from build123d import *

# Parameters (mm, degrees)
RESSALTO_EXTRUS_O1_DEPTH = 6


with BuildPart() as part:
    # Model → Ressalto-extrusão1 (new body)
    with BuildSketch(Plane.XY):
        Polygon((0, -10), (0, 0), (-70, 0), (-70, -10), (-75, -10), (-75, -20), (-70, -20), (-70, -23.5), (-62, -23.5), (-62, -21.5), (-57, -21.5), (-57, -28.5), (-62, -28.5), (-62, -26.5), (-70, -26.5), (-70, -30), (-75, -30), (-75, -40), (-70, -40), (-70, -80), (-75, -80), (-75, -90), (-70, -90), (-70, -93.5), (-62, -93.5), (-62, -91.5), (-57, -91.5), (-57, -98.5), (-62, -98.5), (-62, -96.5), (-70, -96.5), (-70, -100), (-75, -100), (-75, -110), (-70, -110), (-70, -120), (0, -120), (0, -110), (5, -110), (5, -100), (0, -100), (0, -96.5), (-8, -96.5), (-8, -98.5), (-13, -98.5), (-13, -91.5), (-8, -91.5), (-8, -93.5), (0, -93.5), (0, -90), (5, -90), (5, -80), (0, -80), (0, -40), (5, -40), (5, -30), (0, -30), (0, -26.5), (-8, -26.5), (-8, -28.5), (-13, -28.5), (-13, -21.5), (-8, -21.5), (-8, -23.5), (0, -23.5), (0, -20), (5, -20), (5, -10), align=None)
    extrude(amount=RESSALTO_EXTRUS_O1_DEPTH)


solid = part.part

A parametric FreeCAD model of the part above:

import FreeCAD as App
import Part
import Sketcher

V = App.Vector
Q = App.Units.Quantity

doc = App.newDocument("Part")
body = doc.addObject("PartDesign::Body", "Body")

sketch1 = body.newObject("Sketcher::SketchObject", "Sketch")
sketch1.AttachmentSupport = (doc.getObject("XY_Plane"), [""])
sketch1.MapMode = "FlatFace"
sketch1.addGeometry(Part.LineSegment(V(0, -10, 0), V(0, 0, 0)), False)
sketch1.addGeometry(Part.LineSegment(V(0, 0, 0), V(-70, 0, 0)), False)
sketch1.addGeometry(Part.LineSegment(V(-70, 0, 0), V(-70, -10, 0)), False)
sketch1.addGeometry(Part.LineSegment(V(-70, -10, 0), V(-75, -10, 0)), False)
sketch1.addGeometry(Part.LineSegment(V(-75, -10, 0), V(-75, -20, 0)), False)
sketch1.addGeometry(Part.LineSegment(V(-75, -20, 0), V(-70, -20, 0)), False)
sketch1.addGeometry(Part.LineSegment(V(-70, -20, 0), V(-70, -23.5, 0)), False)
sketch1.addGeometry(Part.LineSegment(V(-70, -23.5, 0), V(-62, -23.5, 0)), False)
sketch1.addGeometry(Part.LineSegment(V(-62, -23.5, 0), V(-62, -21.5, 0)), False)
sketch1.addGeometry(Part.LineSegment(V(-62, -21.5, 0), V(-57, -21.5, 0)), False)
sketch1.addGeometry(Part.LineSegment(V(-57, -21.5, 0), V(-57, -28.5, 0)), False)
sketch1.addGeometry(Part.LineSegment(V(-57, -28.5, 0), V(-62, -28.5, 0)), False)
sketch1.addGeometry(Part.LineSegment(V(-62, -28.5, 0), V(-62, -26.5, 0)), False)
sketch1.addGeometry(Part.LineSegment(V(-62, -26.5, 0), V(-70, -26.5, 0)), False)
sketch1.addGeometry(Part.LineSegment(V(-70, -26.5, 0), V(-70, -30, 0)), False)
sketch1.addGeometry(Part.LineSegment(V(-70, -30, 0), V(-75, -30, 0)), False)
sketch1.addGeometry(Part.LineSegment(V(-75, -30, 0), V(-75, -40, 0)), False)
sketch1.addGeometry(Part.LineSegment(V(-75, -40, 0), V(-70, -40, 0)), False)
sketch1.addGeometry(Part.LineSegment(V(-70, -40, 0), V(-70, -80, 0)), False)
sketch1.addGeometry(Part.LineSegment(V(-70, -80, 0), V(-75, -80, 0)), False)
sketch1.addGeometry(Part.LineSegment(V(-75, -80, 0), V(-75, -90, 0)), False)
sketch1.addGeometry(Part.LineSegment(V(-75, -90, 0), V(-70, -90, 0)), False)
sketch1.addGeometry(Part.LineSegment(V(-70, -90, 0), V(-70, -93.5, 0)), False)
sketch1.addGeometry(Part.LineSegment(V(-70, -93.5, 0), V(-62, -93.5, 0)), False)
sketch1.addGeometry(Part.LineSegment(V(-62, -93.5, 0), V(-62, -91.5, 0)), False)
sketch1.addGeometry(Part.LineSegment(V(-62, -91.5, 0), V(-57, -91.5, 0)), False)
sketch1.addGeometry(Part.LineSegment(V(-57, -91.5, 0), V(-57, -98.5, 0)), False)
sketch1.addGeometry(Part.LineSegment(V(-57, -98.5, 0), V(-62, -98.5, 0)), False)
sketch1.addGeometry(Part.LineSegment(V(-62, -98.5, 0), V(-62, -96.5, 0)), False)
sketch1.addGeometry(Part.LineSegment(V(-62, -96.5, 0), V(-70, -96.5, 0)), False)
sketch1.addGeometry(Part.LineSegment(V(-70, -96.5, 0), V(-70, -100, 0)), False)
sketch1.addGeometry(Part.LineSegment(V(-70, -100, 0), V(-75, -100, 0)), False)
sketch1.addGeometry(Part.LineSegment(V(-75, -100, 0), V(-75, -110, 0)), False)
sketch1.addGeometry(Part.LineSegment(V(-75, -110, 0), V(-70, -110, 0)), False)
sketch1.addGeometry(Part.LineSegment(V(-70, -110, 0), V(-70, -120, 0)), False)
sketch1.addGeometry(Part.LineSegment(V(-70, -120, 0), V(0, -120, 0)), False)
sketch1.addGeometry(Part.LineSegment(V(0, -120, 0), V(0, -110, 0)), False)
sketch1.addGeometry(Part.LineSegment(V(0, -110, 0), V(5, -110, 0)), False)
sketch1.addGeometry(Part.LineSegment(V(5, -110, 0), V(5, -100, 0)), False)
sketch1.addGeometry(Part.LineSegment(V(5, -100, 0), V(0, -100, 0)), False)
sketch1.addGeometry(Part.LineSegment(V(0, -100, 0), V(0, -96.5, 0)), False)
sketch1.addGeometry(Part.LineSegment(V(0, -96.5, 0), V(-8, -96.5, 0)), False)
sketch1.addGeometry(Part.LineSegment(V(-8, -96.5, 0), V(-8, -98.5, 0)), False)
sketch1.addGeometry(Part.LineSegment(V(-8, -98.5, 0), V(-13, -98.5, 0)), False)
sketch1.addGeometry(Part.LineSegment(V(-13, -98.5, 0), V(-13, -91.5, 0)), False)
sketch1.addGeometry(Part.LineSegment(V(-13, -91.5, 0), V(-8, -91.5, 0)), False)
sketch1.addGeometry(Part.LineSegment(V(-8, -91.5, 0), V(-8, -93.5, 0)), False)
sketch1.addGeometry(Part.LineSegment(V(-8, -93.5, 0), V(0, -93.5, 0)), False)
sketch1.addGeometry(Part.LineSegment(V(0, -93.5, 0), V(0, -90, 0)), False)
sketch1.addGeometry(Part.LineSegment(V(0, -90, 0), V(5, -90, 0)), False)
sketch1.addGeometry(Part.LineSegment(V(5, -90, 0), V(5, -80, 0)), False)
sketch1.addGeometry(Part.LineSegment(V(5, -80, 0), V(0, -80, 0)), False)
sketch1.addGeometry(Part.LineSegment(V(0, -80, 0), V(0, -40, 0)), False)
sketch1.addGeometry(Part.LineSegment(V(0, -40, 0), V(5, -40, 0)), False)
sketch1.addGeometry(Part.LineSegment(V(5, -40, 0), V(5, -30, 0)), False)
sketch1.addGeometry(Part.LineSegment(V(5, -30, 0), V(0, -30, 0)), False)
sketch1.addGeometry(Part.LineSegment(V(0, -30, 0), V(0, -26.5, 0)), False)
sketch1.addGeometry(Part.LineSegment(V(0, -26.5, 0), V(-8, -26.5, 0)), False)
sketch1.addGeometry(Part.LineSegment(V(-8, -26.5, 0), V(-8, -28.5, 0)), False)
sketch1.addGeometry(Part.LineSegment(V(-8, -28.5, 0), V(-13, -28.5, 0)), False)
sketch1.addGeometry(Part.LineSegment(V(-13, -28.5, 0), V(-13, -21.5, 0)), False)
sketch1.addGeometry(Part.LineSegment(V(-13, -21.5, 0), V(-8, -21.5, 0)), False)
sketch1.addGeometry(Part.LineSegment(V(-8, -21.5, 0), V(-8, -23.5, 0)), False)
sketch1.addGeometry(Part.LineSegment(V(-8, -23.5, 0), V(0, -23.5, 0)), False)
sketch1.addGeometry(Part.LineSegment(V(0, -23.5, 0), V(0, -20, 0)), False)
sketch1.addGeometry(Part.LineSegment(V(0, -20, 0), V(5, -20, 0)), False)
sketch1.addGeometry(Part.LineSegment(V(5, -20, 0), V(5, -10, 0)), False)
sketch1.addGeometry(Part.LineSegment(V(5, -10, 0), V(0, -10, 0)), False)
sketch1.addConstraint(Sketcher.Constraint("Coincident", 0, 2, 1, 1))
sketch1.addConstraint(Sketcher.Constraint("Coincident", 1, 2, 2, 1))
sketch1.addConstraint(Sketcher.Constraint("Coincident", 2, 2, 3, 1))
sketch1.addConstraint(Sketcher.Constraint("Coincident", 3, 2, 4, 1))
sketch1.addConstraint(Sketcher.Constraint("Coincident", 4, 2, 5, 1))
sketch1.addConstraint(Sketcher.Constraint("Coincident", 5, 2, 6, 1))
sketch1.addConstraint(Sketcher.Constraint("Coincident", 6, 2, 7, 1))
sketch1.addConstraint(Sketcher.Constraint("Coincident", 7, 2, 8, 1))
sketch1.addConstraint(Sketcher.Constraint("Coincident", 8, 2, 9, 1))
sketch1.addConstraint(Sketcher.Constraint("Coincident", 9, 2, 10, 1))
sketch1.addConstraint(Sketcher.Constraint("Coincident", 10, 2, 11, 1))
sketch1.addConstraint(Sketcher.Constraint("Coincident", 11, 2, 12, 1))
sketch1.addConstraint(Sketcher.Constraint("Coincident", 12, 2, 13, 1))
sketch1.addConstraint(Sketcher.Constraint("Coincident", 13, 2, 14, 1))
sketch1.addConstraint(Sketcher.Constraint("Coincident", 14, 2, 15, 1))
sketch1.addConstraint(Sketcher.Constraint("Coincident", 15, 2, 16, 1))
sketch1.addConstraint(Sketcher.Constraint("Coincident", 16, 2, 17, 1))
sketch1.addConstraint(Sketcher.Constraint("Coincident", 17, 2, 18, 1))
sketch1.addConstraint(Sketcher.Constraint("Coincident", 18, 2, 19, 1))
sketch1.addConstraint(Sketcher.Constraint("Coincident", 19, 2, 20, 1))
sketch1.addConstraint(Sketcher.Constraint("Coincident", 20, 2, 21, 1))
sketch1.addConstraint(Sketcher.Constraint("Coincident", 21, 2, 22, 1))
sketch1.addConstraint(Sketcher.Constraint("Coincident", 22, 2, 23, 1))
sketch1.addConstraint(Sketcher.Constraint("Coincident", 23, 2, 24, 1))
sketch1.addConstraint(Sketcher.Constraint("Coincident", 24, 2, 25, 1))
sketch1.addConstraint(Sketcher.Constraint("Coincident", 25, 2, 26, 1))
sketch1.addConstraint(Sketcher.Constraint("Coincident", 26, 2, 27, 1))
sketch1.addConstraint(Sketcher.Constraint("Coincident", 27, 2, 28, 1))
sketch1.addConstraint(Sketcher.Constraint("Coincident", 28, 2, 29, 1))
sketch1.addConstraint(Sketcher.Constraint("Coincident", 29, 2, 30, 1))
sketch1.addConstraint(Sketcher.Constraint("Coincident", 30, 2, 31, 1))
sketch1.addConstraint(Sketcher.Constraint("Coincident", 31, 2, 32, 1))
sketch1.addConstraint(Sketcher.Constraint("Coincident", 32, 2, 33, 1))
sketch1.addConstraint(Sketcher.Constraint("Coincident", 33, 2, 34, 1))
sketch1.addConstraint(Sketcher.Constraint("Coincident", 34, 2, 35, 1))
sketch1.addConstraint(Sketcher.Constraint("Coincident", 35, 2, 36, 1))
sketch1.addConstraint(Sketcher.Constraint("Coincident", 36, 2, 37, 1))
sketch1.addConstraint(Sketcher.Constraint("Coincident", 37, 2, 38, 1))
sketch1.addConstraint(Sketcher.Constraint("Coincident", 38, 2, 39, 1))
sketch1.addConstraint(Sketcher.Constraint("Coincident", 39, 2, 40, 1))
sketch1.addConstraint(Sketcher.Constraint("Coincident", 40, 2, 41, 1))
sketch1.addConstraint(Sketcher.Constraint("Coincident", 41, 2, 42, 1))
sketch1.addConstraint(Sketcher.Constraint("Coincident", 42, 2, 43, 1))
sketch1.addConstraint(Sketcher.Constraint("Coincident", 43, 2, 44, 1))
sketch1.addConstraint(Sketcher.Constraint("Coincident", 44, 2, 45, 1))
sketch1.addConstraint(Sketcher.Constraint("Coincident", 45, 2, 46, 1))
sketch1.addConstraint(Sketcher.Constraint("Coincident", 46, 2, 47, 1))
sketch1.addConstraint(Sketcher.Constraint("Coincident", 47, 2, 48, 1))
sketch1.addConstraint(Sketcher.Constraint("Coincident", 48, 2, 49, 1))
sketch1.addConstraint(Sketcher.Constraint("Coincident", 49, 2, 50, 1))
sketch1.addConstraint(Sketcher.Constraint("Coincident", 50, 2, 51, 1))
sketch1.addConstraint(Sketcher.Constraint("Coincident", 51, 2, 52, 1))
sketch1.addConstraint(Sketcher.Constraint("Coincident", 52, 2, 53, 1))
sketch1.addConstraint(Sketcher.Constraint("Coincident", 53, 2, 54, 1))
sketch1.addConstraint(Sketcher.Constraint("Coincident", 54, 2, 55, 1))
sketch1.addConstraint(Sketcher.Constraint("Coincident", 55, 2, 56, 1))
sketch1.addConstraint(Sketcher.Constraint("Coincident", 56, 2, 57, 1))
sketch1.addConstraint(Sketcher.Constraint("Coincident", 57, 2, 58, 1))
sketch1.addConstraint(Sketcher.Constraint("Coincident", 58, 2, 59, 1))
sketch1.addConstraint(Sketcher.Constraint("Coincident", 59, 2, 60, 1))
sketch1.addConstraint(Sketcher.Constraint("Coincident", 60, 2, 61, 1))
sketch1.addConstraint(Sketcher.Constraint("Coincident", 61, 2, 62, 1))
sketch1.addConstraint(Sketcher.Constraint("Coincident", 62, 2, 63, 1))
sketch1.addConstraint(Sketcher.Constraint("Coincident", 63, 2, 64, 1))
sketch1.addConstraint(Sketcher.Constraint("Coincident", 64, 2, 65, 1))
sketch1.addConstraint(Sketcher.Constraint("Coincident", 65, 2, 66, 1))
sketch1.addConstraint(Sketcher.Constraint("Coincident", 66, 2, 67, 1))
sketch1.addConstraint(Sketcher.Constraint("Coincident", 67, 2, 0, 1))
sketch1.addConstraint(Sketcher.Constraint("Vertical", 0))
sketch1.addConstraint(Sketcher.Constraint("Horizontal", 1))
sketch1.addConstraint(Sketcher.Constraint("Vertical", 2))
sketch1.addConstraint(Sketcher.Constraint("Horizontal", 3))
sketch1.addConstraint(Sketcher.Constraint("Vertical", 4))
sketch1.addConstraint(Sketcher.Constraint("Horizontal", 5))
sketch1.addConstraint(Sketcher.Constraint("Vertical", 6))
sketch1.addConstraint(Sketcher.Constraint("Horizontal", 7))
sketch1.addConstraint(Sketcher.Constraint("Vertical", 8))
sketch1.addConstraint(Sketcher.Constraint("Horizontal", 9))
sketch1.addConstraint(Sketcher.Constraint("Vertical", 10))
sketch1.addConstraint(Sketcher.Constraint("Horizontal", 11))
sketch1.addConstraint(Sketcher.Constraint("Vertical", 12))
sketch1.addConstraint(Sketcher.Constraint("Horizontal", 13))
sketch1.addConstraint(Sketcher.Constraint("Vertical", 14))
sketch1.addConstraint(Sketcher.Constraint("Horizontal", 15))
sketch1.addConstraint(Sketcher.Constraint("Vertical", 16))
sketch1.addConstraint(Sketcher.Constraint("Horizontal", 17))
sketch1.addConstraint(Sketcher.Constraint("Vertical", 18))
sketch1.addConstraint(Sketcher.Constraint("Horizontal", 19))
sketch1.addConstraint(Sketcher.Constraint("Vertical", 20))
sketch1.addConstraint(Sketcher.Constraint("Horizontal", 21))
sketch1.addConstraint(Sketcher.Constraint("Vertical", 22))
sketch1.addConstraint(Sketcher.Constraint("Horizontal", 23))
sketch1.addConstraint(Sketcher.Constraint("Vertical", 24))
sketch1.addConstraint(Sketcher.Constraint("Horizontal", 25))
sketch1.addConstraint(Sketcher.Constraint("Vertical", 26))
sketch1.addConstraint(Sketcher.Constraint("Horizontal", 27))
sketch1.addConstraint(Sketcher.Constraint("Vertical", 28))
sketch1.addConstraint(Sketcher.Constraint("Horizontal", 29))
sketch1.addConstraint(Sketcher.Constraint("Vertical", 30))
sketch1.addConstraint(Sketcher.Constraint("Horizontal", 31))
sketch1.addConstraint(Sketcher.Constraint("Vertical", 32))
sketch1.addConstraint(Sketcher.Constraint("Horizontal", 33))
sketch1.addConstraint(Sketcher.Constraint("Vertical", 34))
sketch1.addConstraint(Sketcher.Constraint("Horizontal", 35))
sketch1.addConstraint(Sketcher.Constraint("Vertical", 36))
sketch1.addConstraint(Sketcher.Constraint("Horizontal", 37))
sketch1.addConstraint(Sketcher.Constraint("Vertical", 38))
sketch1.addConstraint(Sketcher.Constraint("Horizontal", 39))
sketch1.addConstraint(Sketcher.Constraint("Vertical", 40))
sketch1.addConstraint(Sketcher.Constraint("Horizontal", 41))
sketch1.addConstraint(Sketcher.Constraint("Vertical", 42))
sketch1.addConstraint(Sketcher.Constraint("Horizontal", 43))
sketch1.addConstraint(Sketcher.Constraint("Vertical", 44))
sketch1.addConstraint(Sketcher.Constraint("Horizontal", 45))
sketch1.addConstraint(Sketcher.Constraint("Vertical", 46))
sketch1.addConstraint(Sketcher.Constraint("Horizontal", 47))
sketch1.addConstraint(Sketcher.Constraint("Vertical", 48))
sketch1.addConstraint(Sketcher.Constraint("Horizontal", 49))
sketch1.addConstraint(Sketcher.Constraint("Vertical", 50))
sketch1.addConstraint(Sketcher.Constraint("Horizontal", 51))
sketch1.addConstraint(Sketcher.Constraint("Vertical", 52))
sketch1.addConstraint(Sketcher.Constraint("Horizontal", 53))
sketch1.addConstraint(Sketcher.Constraint("Vertical", 54))
sketch1.addConstraint(Sketcher.Constraint("Horizontal", 55))
sketch1.addConstraint(Sketcher.Constraint("Vertical", 56))
sketch1.addConstraint(Sketcher.Constraint("Horizontal", 57))
sketch1.addConstraint(Sketcher.Constraint("Vertical", 58))
sketch1.addConstraint(Sketcher.Constraint("Horizontal", 59))
sketch1.addConstraint(Sketcher.Constraint("Vertical", 60))
sketch1.addConstraint(Sketcher.Constraint("Horizontal", 61))
sketch1.addConstraint(Sketcher.Constraint("Vertical", 62))
sketch1.addConstraint(Sketcher.Constraint("Horizontal", 63))
sketch1.addConstraint(Sketcher.Constraint("Vertical", 64))
sketch1.addConstraint(Sketcher.Constraint("Horizontal", 65))
sketch1.addConstraint(Sketcher.Constraint("Vertical", 66))
sketch1.addConstraint(Sketcher.Constraint("Horizontal", 67))
sketch1.addConstraint(Sketcher.Constraint("Coincident", 0, 2, -1, 1))
sketch1.addConstraint(Sketcher.Constraint("PointOnObject", 35, 2, -2))
sketch1.addConstraint(Sketcher.Constraint("PointOnObject", 39, 2, -2))
sketch1.addConstraint(Sketcher.Constraint("PointOnObject", 47, 2, -2))
sketch1.addConstraint(Sketcher.Constraint("PointOnObject", 51, 2, -2))
sketch1.addConstraint(Sketcher.Constraint("PointOnObject", 55, 2, -2))
sketch1.addConstraint(Sketcher.Constraint("PointOnObject", 63, 2, -2))
sketch1.addConstraint(Sketcher.Constraint("Horizontal", 33, 2, 36, 2))
sketch1.addConstraint(Sketcher.Constraint("Horizontal", 31, 2, 38, 2))
sketch1.addConstraint(Sketcher.Constraint("Horizontal", 29, 2, 40, 2))
sketch1.addConstraint(Sketcher.Constraint("Horizontal", 27, 2, 42, 2))
sketch1.addConstraint(Sketcher.Constraint("Horizontal", 25, 2, 44, 2))
sketch1.addConstraint(Sketcher.Constraint("Horizontal", 23, 2, 46, 2))
sketch1.addConstraint(Sketcher.Constraint("Horizontal", 21, 2, 48, 2))
sketch1.addConstraint(Sketcher.Constraint("Horizontal", 19, 2, 50, 2))
sketch1.addConstraint(Sketcher.Constraint("Horizontal", 17, 2, 52, 2))
sketch1.addConstraint(Sketcher.Constraint("Horizontal", 15, 2, 54, 2))
sketch1.addConstraint(Sketcher.Constraint("Horizontal", 13, 2, 56, 2))
sketch1.addConstraint(Sketcher.Constraint("Horizontal", 11, 2, 58, 2))
sketch1.addConstraint(Sketcher.Constraint("Horizontal", 9, 2, 60, 2))
sketch1.addConstraint(Sketcher.Constraint("Horizontal", 7, 2, 62, 2))
sketch1.addConstraint(Sketcher.Constraint("Horizontal", 5, 2, 64, 2))
sketch1.addConstraint(Sketcher.Constraint("Horizontal", 3, 2, 66, 2))
sketch1.addConstraint(Sketcher.Constraint("Vertical", 2, 2, 5, 2))
sketch1.addConstraint(Sketcher.Constraint("Vertical", 8, 2, 11, 2))
sketch1.addConstraint(Sketcher.Constraint("Vertical", 6, 2, 13, 2))
sketch1.addConstraint(Sketcher.Constraint("Vertical", 4, 2, 15, 2))
sketch1.addConstraint(Sketcher.Constraint("Vertical", 14, 2, 17, 2))
sketch1.addConstraint(Sketcher.Constraint("Vertical", 16, 2, 19, 2))
sketch1.addConstraint(Sketcher.Constraint("Vertical", 18, 2, 21, 2))
sketch1.addConstraint(Sketcher.Constraint("Vertical", 12, 2, 23, 2))
sketch1.addConstraint(Sketcher.Constraint("Vertical", 10, 2, 25, 2))
sketch1.addConstraint(Sketcher.Constraint("Vertical", 24, 2, 27, 2))
sketch1.addConstraint(Sketcher.Constraint("Vertical", 22, 2, 29, 2))
sketch1.addConstraint(Sketcher.Constraint("Vertical", 20, 2, 31, 2))
sketch1.addConstraint(Sketcher.Constraint("Vertical", 30, 2, 33, 2))
sketch1.addConstraint(Sketcher.Constraint("Vertical", 42, 2, 45, 2))
sketch1.addConstraint(Sketcher.Constraint("Vertical", 38, 2, 49, 2))
sketch1.addConstraint(Sketcher.Constraint("Vertical", 50, 2, 53, 2))
sketch1.addConstraint(Sketcher.Constraint("Vertical", 46, 2, 57, 2))
sketch1.addConstraint(Sketcher.Constraint("Vertical", 44, 2, 59, 2))
sketch1.addConstraint(Sketcher.Constraint("Vertical", 58, 2, 61, 2))
sketch1.addConstraint(Sketcher.Constraint("Vertical", 54, 2, 65, 2))
sketch1.addConstraint(Sketcher.Constraint("Equal", 5, 9))
sketch1.addConstraint(Sketcher.Constraint("Equal", 33, 37))
sketch1.addConstraint(Sketcher.Constraint("Equal", 29, 41))
sketch1.addConstraint(Sketcher.Constraint("Equal", 39, 43))
sketch1.addConstraint(Sketcher.Constraint("Equal", 2, 4))
sketch1.addConstraint(Sketcher.Constraint("Equal", 8, 12))
sketch1.addConstraint(Sketcher.Constraint("Equal", 6, 14))
sketch1.addConstraint(Sketcher.Constraint("Equal", 4, 16))
sketch1.addConstraint(Sketcher.Constraint("Equal", 16, 20))
sketch1.addConstraint(Sketcher.Constraint("Equal", 14, 22))
sketch1.addConstraint(Sketcher.Constraint("Equal", 12, 24))
sketch1.addConstraint(Sketcher.Constraint("Equal", 10, 26))
sketch1.addConstraint(Sketcher.Constraint("Equal", 24, 28))
sketch1.addConstraint(Sketcher.Constraint("Equal", 22, 30))
sketch1.addConstraint(Sketcher.Constraint("Equal", 20, 32))
sketch1.addConstraint(Sketcher.Constraint("Equal", 32, 34))
sketch1.addConstraint(Sketcher.Constraint("DistanceX", 1, 2, 1, 1, Q("70 mm")))
sketch1.addConstraint(Sketcher.Constraint("DistanceX", 3, 2, 3, 1, Q("5 mm")))
sketch1.addConstraint(Sketcher.Constraint("DistanceX", 7, 1, 7, 2, Q("8 mm")))
sketch1.addConstraint(Sketcher.Constraint("DistanceY", 0, 1, 0, 2, Q("10 mm")))
sketch1.addConstraint(Sketcher.Constraint("DistanceY", 8, 1, 8, 2, Q("2 mm")))
sketch1.addConstraint(Sketcher.Constraint("DistanceY", 10, 2, 10, 1, Q("7 mm")))
sketch1.addConstraint(Sketcher.Constraint("DistanceY", 18, 2, 18, 1, Q("40 mm")))
sketch1.addConstraint(Sketcher.Constraint("DistanceY", 6, 2, 6, 1, Q("3.5 mm")))
pad1 = body.newObject("PartDesign::Pad", "Pad")
pad1.Profile = sketch1
pad1.Length = 6

doc.recompute()
